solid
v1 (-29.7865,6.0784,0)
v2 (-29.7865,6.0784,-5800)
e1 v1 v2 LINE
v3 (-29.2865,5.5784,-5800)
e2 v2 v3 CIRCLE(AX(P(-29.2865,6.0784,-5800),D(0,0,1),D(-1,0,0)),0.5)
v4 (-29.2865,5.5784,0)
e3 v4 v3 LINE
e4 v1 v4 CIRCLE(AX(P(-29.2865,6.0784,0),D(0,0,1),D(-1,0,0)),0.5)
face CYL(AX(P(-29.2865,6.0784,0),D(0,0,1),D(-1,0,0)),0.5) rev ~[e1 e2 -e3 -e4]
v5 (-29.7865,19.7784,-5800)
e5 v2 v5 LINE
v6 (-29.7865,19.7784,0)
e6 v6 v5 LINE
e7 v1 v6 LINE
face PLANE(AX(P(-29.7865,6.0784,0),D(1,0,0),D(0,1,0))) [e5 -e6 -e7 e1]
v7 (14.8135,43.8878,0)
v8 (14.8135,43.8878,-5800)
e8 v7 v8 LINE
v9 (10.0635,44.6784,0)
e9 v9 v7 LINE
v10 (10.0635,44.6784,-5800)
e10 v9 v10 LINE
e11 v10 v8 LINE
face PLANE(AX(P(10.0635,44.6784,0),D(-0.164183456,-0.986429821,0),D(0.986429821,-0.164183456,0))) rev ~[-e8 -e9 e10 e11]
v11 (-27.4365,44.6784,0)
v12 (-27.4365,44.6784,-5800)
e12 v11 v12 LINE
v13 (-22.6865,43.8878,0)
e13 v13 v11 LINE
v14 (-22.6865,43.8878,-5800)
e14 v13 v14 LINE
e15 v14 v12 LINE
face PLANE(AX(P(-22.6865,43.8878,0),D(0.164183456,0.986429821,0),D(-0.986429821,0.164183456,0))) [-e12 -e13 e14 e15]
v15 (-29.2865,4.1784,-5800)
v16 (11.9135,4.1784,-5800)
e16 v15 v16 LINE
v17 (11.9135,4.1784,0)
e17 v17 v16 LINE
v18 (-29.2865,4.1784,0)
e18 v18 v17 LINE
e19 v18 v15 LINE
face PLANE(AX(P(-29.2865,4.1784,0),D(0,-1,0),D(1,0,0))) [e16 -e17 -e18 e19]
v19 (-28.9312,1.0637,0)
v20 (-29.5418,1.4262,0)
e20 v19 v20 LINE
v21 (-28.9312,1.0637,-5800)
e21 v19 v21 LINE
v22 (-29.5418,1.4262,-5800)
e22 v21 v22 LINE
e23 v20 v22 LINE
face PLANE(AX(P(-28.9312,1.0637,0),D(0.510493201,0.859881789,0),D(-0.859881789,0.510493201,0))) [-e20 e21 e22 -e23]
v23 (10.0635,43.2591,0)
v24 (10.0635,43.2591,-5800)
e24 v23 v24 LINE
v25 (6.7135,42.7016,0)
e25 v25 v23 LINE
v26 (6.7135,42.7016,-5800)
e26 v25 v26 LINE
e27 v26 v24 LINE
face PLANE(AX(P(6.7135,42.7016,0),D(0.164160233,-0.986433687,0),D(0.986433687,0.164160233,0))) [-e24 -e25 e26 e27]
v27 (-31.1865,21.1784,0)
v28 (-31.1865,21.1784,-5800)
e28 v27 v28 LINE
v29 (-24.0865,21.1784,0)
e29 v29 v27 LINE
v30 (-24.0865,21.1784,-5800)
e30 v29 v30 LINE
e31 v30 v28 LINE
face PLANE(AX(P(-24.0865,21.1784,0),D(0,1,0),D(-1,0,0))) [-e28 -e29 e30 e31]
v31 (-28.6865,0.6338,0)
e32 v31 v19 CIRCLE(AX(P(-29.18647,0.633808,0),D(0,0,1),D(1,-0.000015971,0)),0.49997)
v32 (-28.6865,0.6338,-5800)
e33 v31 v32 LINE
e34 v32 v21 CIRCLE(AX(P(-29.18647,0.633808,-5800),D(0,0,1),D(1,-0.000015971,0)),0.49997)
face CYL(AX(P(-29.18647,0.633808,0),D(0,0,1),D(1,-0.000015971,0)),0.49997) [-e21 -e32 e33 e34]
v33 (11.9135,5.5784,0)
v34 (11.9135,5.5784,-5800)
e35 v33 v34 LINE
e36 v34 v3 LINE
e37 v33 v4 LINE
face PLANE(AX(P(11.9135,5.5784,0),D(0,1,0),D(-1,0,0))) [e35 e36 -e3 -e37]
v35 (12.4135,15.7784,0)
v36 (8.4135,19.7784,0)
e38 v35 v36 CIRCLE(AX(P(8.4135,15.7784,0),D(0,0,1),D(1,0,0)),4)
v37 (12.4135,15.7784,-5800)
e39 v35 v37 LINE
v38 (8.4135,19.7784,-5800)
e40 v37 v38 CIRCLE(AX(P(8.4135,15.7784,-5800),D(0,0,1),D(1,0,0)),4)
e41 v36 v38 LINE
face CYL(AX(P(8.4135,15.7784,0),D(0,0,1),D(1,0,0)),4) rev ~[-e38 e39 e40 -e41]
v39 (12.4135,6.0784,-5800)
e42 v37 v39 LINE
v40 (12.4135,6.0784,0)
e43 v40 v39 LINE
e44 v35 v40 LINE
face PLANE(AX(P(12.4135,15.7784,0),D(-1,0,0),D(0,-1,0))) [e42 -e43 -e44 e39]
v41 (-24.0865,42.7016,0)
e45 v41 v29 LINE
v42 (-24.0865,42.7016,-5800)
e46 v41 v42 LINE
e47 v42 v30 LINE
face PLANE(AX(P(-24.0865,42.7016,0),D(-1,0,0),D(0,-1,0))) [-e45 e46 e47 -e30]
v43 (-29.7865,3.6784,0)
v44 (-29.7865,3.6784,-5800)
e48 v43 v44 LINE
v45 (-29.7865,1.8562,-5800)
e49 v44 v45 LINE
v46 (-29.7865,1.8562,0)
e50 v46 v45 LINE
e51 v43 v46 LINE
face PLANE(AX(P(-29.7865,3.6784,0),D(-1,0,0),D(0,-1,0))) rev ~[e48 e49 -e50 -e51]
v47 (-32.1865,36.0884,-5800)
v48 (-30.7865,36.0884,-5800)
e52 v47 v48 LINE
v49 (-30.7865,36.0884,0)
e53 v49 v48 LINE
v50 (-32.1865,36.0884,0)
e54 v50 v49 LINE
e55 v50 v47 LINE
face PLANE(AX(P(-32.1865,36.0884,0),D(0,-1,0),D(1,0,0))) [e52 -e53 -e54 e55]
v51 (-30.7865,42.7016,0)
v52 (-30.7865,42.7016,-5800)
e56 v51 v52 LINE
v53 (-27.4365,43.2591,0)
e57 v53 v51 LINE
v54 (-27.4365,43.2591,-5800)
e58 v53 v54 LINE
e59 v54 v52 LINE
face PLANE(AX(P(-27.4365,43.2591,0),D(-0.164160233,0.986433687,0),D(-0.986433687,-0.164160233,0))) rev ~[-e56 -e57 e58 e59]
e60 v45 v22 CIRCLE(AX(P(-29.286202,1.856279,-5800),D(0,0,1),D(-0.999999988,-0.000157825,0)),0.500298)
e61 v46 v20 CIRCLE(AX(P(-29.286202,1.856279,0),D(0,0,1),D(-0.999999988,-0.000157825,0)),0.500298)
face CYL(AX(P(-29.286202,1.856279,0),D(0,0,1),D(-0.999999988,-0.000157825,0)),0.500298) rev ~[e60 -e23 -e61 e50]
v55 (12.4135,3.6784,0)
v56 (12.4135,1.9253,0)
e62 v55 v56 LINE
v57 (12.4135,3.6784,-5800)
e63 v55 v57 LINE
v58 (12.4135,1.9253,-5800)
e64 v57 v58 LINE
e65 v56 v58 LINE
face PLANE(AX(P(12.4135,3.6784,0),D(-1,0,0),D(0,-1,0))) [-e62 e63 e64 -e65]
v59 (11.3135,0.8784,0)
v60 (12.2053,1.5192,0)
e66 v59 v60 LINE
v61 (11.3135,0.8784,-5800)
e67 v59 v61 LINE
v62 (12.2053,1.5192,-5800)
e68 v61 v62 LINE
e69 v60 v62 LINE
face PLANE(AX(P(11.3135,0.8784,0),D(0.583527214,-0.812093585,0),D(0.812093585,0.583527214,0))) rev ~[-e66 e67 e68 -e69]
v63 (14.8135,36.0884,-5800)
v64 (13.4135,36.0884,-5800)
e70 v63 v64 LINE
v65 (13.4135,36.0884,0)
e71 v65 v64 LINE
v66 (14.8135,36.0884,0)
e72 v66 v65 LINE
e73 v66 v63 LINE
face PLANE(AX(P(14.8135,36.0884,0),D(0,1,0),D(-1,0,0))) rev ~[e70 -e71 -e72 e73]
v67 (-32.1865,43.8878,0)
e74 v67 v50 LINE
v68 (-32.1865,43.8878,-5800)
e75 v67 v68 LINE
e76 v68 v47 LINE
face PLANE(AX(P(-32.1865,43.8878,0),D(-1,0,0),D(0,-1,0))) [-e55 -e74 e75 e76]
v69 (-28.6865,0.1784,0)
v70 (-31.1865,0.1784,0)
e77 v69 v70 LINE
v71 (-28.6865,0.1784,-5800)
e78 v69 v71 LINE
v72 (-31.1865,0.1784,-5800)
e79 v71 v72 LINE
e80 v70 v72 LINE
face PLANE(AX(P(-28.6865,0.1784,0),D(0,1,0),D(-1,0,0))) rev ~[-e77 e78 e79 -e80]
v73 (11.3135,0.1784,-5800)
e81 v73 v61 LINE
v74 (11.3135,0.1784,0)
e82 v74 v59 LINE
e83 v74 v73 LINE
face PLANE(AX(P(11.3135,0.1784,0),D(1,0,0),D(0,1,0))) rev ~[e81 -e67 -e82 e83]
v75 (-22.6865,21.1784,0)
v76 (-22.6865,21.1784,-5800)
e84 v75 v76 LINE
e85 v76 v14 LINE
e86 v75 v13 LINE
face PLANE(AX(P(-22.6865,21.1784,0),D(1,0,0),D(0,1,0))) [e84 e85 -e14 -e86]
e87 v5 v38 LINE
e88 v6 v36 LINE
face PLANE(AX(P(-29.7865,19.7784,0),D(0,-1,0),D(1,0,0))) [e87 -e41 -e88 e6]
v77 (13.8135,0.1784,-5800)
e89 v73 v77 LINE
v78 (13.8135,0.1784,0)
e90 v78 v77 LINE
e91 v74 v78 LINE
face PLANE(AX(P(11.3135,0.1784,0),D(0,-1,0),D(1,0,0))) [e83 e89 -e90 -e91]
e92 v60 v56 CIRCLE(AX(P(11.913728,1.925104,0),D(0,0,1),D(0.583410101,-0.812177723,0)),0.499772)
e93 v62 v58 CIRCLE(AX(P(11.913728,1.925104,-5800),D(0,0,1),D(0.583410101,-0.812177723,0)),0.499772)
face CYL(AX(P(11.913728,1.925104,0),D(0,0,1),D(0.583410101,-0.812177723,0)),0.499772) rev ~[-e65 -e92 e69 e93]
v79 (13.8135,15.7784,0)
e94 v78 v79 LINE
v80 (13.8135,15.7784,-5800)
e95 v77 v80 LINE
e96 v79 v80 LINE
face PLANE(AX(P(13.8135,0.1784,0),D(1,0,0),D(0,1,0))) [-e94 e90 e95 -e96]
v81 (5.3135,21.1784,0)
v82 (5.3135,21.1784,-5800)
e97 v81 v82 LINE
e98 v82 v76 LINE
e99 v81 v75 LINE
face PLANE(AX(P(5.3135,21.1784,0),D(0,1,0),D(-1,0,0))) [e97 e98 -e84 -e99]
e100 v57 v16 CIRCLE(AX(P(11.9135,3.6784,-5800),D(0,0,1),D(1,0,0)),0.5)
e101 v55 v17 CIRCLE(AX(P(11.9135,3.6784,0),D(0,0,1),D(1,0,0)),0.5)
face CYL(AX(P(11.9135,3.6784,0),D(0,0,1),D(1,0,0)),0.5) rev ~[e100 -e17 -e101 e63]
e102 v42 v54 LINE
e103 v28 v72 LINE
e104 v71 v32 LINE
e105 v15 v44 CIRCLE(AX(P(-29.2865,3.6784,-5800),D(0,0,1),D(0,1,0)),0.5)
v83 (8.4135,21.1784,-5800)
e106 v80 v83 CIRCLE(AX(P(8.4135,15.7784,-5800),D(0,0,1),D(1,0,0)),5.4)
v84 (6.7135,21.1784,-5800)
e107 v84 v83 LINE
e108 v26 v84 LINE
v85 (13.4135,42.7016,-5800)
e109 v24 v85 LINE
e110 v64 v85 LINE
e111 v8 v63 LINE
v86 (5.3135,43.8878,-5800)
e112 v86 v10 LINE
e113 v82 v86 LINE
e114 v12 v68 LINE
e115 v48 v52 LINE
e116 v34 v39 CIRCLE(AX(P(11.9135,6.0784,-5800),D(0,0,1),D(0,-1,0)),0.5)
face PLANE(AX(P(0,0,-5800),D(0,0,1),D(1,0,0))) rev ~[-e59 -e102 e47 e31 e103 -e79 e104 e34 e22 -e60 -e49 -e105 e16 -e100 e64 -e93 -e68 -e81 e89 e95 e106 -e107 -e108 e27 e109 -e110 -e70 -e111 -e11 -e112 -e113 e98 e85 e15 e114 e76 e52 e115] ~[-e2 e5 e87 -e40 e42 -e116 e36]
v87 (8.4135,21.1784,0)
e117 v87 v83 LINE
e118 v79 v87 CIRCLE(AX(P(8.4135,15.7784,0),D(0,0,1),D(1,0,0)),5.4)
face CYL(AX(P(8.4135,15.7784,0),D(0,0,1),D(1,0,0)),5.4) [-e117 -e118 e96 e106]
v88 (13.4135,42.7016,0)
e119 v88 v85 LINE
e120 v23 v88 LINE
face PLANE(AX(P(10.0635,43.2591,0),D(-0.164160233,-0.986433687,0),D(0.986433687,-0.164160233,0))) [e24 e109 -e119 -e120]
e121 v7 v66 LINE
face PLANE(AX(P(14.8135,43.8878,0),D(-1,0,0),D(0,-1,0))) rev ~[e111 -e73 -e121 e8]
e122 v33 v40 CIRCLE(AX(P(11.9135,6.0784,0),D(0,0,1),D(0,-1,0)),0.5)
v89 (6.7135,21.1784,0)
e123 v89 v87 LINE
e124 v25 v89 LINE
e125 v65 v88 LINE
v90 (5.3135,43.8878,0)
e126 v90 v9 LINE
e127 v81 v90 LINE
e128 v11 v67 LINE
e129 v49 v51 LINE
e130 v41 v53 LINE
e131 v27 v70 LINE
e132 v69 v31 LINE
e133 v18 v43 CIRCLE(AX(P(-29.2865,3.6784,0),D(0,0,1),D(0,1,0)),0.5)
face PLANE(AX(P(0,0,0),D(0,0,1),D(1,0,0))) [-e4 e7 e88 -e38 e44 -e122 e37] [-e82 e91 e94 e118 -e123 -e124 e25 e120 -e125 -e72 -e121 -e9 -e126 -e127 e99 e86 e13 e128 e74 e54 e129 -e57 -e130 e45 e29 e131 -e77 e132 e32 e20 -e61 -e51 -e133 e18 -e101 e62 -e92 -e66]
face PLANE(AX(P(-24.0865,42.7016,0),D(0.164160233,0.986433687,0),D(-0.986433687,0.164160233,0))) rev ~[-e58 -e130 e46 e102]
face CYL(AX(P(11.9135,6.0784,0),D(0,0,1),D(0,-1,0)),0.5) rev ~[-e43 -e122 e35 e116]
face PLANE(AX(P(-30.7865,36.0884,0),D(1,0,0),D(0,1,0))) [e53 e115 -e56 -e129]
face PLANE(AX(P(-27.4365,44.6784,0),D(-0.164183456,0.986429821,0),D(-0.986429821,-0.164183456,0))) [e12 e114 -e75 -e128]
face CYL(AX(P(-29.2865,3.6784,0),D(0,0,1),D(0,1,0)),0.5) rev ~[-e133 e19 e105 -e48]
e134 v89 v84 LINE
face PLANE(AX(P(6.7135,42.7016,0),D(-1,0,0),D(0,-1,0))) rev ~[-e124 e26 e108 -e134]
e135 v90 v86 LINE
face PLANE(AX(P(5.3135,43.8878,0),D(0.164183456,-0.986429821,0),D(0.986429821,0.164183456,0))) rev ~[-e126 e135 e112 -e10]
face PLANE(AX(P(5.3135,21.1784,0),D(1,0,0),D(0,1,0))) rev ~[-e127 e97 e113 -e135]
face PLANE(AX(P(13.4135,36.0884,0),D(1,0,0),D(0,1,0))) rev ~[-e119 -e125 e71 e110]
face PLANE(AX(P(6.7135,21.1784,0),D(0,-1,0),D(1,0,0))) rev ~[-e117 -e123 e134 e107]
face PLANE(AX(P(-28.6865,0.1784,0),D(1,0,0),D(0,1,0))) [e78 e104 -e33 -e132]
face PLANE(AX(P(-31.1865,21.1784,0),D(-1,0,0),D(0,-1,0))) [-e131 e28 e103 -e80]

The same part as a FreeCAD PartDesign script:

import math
import FreeCAD as App
import Part
import Sketcher

V = App.Vector
Q = App.Units.Quantity

doc = App.newDocument("Part")
params = doc.addObject("Spreadsheet::Sheet", "Params")
for row, (alias, value) in enumerate([
    ("sketch1_radius", "4 mm"),
    ("sketch1_radius2", "0.5 mm"),
    ("sketch1_radius3", "5.4 mm"),
    ("sketch1_width", "28 mm"),
    ("sketch1_width2", "2.5 mm"),
    ("pad1_length", "5800 mm"),
], start=1):
    params.set(f"A{row}", alias)
    params.set(f"B{row}", "=" + value)
    params.setAlias(f"B{row}", alias)

body = doc.addObject("PartDesign::Body", "Body")

# Sketch on XY plane
sketch1 = doc.addObject("Sketcher::SketchObject", "Sketch")
body.addObject(sketch1)
sketch1.AttachmentSupport = (doc.XY_Plane, [""])
sketch1.MapMode = "FlatFace"
sketch1.addGeometry([
    Part.LineSegment(V(-24.09, 21.18, 0), V(-31.19, 21.18, 0)),  # 0
    Part.LineSegment(V(-31.19, 21.18, 0), V(-31.19, 0.18, 0)),  # 1
    Part.LineSegment(V(-31.19, 0.18, 0), V(-28.69, 0.18, 0)),  # 2
    Part.LineSegment(V(-28.69, 0.18, 0), V(-28.69, 0.63, 0)),  # 3
    Part.ArcOfCircle(Part.Circle(V(-29.19, 0.63, 0), V(0, 0, 1), 0.5), math.radians(0), math.radians(59)),  # 4
    Part.LineSegment(V(-28.93, 1.06, 0), V(-29.54, 1.43, 0)),  # 5
    Part.ArcOfCircle(Part.Circle(V(-29.29, 1.86, 0), V(0, 0, 1), 0.5), math.radians(180), math.radians(239)),  # 6
    Part.LineSegment(V(-29.79, 1.86, 0), V(-29.79, 3.68, 0)),  # 7
    Part.ArcOfCircle(Part.Circle(V(-29.29, 3.68, 0), V(0, 0, 1), 0.5), math.radians(90), math.radians(180)),  # 8
    Part.LineSegment(V(-29.29, 4.18, 0), V(11.91, 4.18, 0)),  # 9
    Part.ArcOfCircle(Part.Circle(V(11.91, 3.68, 0), V(0, 0, 1), 0.5), math.radians(0), math.radians(90)),  # 10
    Part.LineSegment(V(12.41, 3.68, 0), V(12.41, 1.93, 0)),  # 11
    Part.ArcOfCircle(Part.Circle(V(11.91, 1.93, 0), V(0, 0, 1), 0.5), math.radians(-54), math.radians(0)),  # 12
    Part.LineSegment(V(12.21, 1.52, 0), V(11.31, 0.88, 0)),  # 13
    Part.LineSegment(V(11.31, 0.88, 0), V(11.31, 0.18, 0)),  # 14
    Part.LineSegment(V(11.31, 0.18, 0), V(13.81, 0.18, 0)),  # 15
    Part.LineSegment(V(13.81, 0.18, 0), V(13.81, 15.78, 0)),  # 16
    Part.ArcOfCircle(Part.Circle(V(8.41, 15.78, 0), V(0, 0, 1), 5.4), math.radians(0), math.radians(90)),  # 17
    Part.LineSegment(V(8.41, 21.18, 0), V(6.71, 21.18, 0)),  # 18
    Part.LineSegment(V(6.71, 21.18, 0), V(6.71, 42.7, 0)),  # 19
    Part.LineSegment(V(6.71, 42.7, 0), V(10.06, 43.26, 0)),  # 20
    Part.LineSegment(V(10.06, 43.26, 0), V(13.41, 42.7, 0)),  # 21
    Part.LineSegment(V(13.41, 42.7, 0), V(13.41, 36.09, 0)),  # 22
    Part.LineSegment(V(13.41, 36.09, 0), V(14.81, 36.09, 0)),  # 23
    Part.LineSegment(V(14.81, 36.09, 0), V(14.81, 43.89, 0)),  # 24
    Part.LineSegment(V(14.81, 43.89, 0), V(10.06, 44.68, 0)),  # 25
    Part.LineSegment(V(10.06, 44.68, 0), V(5.31, 43.89, 0)),  # 26
    Part.LineSegment(V(5.31, 43.89, 0), V(5.31, 21.18, 0)),  # 27
    Part.LineSegment(V(5.31, 21.18, 0), V(-22.69, 21.18, 0)),  # 28
    Part.LineSegment(V(-22.69, 21.18, 0), V(-22.69, 43.89, 0)),  # 29
    Part.LineSegment(V(-22.69, 43.89, 0), V(-27.44, 44.68, 0)),  # 30
    Part.LineSegment(V(-27.44, 44.68, 0), V(-32.19, 43.89, 0)),  # 31
    Part.LineSegment(V(-32.19, 43.89, 0), V(-32.19, 36.09, 0)),  # 32
    Part.LineSegment(V(-32.19, 36.09, 0), V(-30.79, 36.09, 0)),  # 33
    Part.LineSegment(V(-30.79, 36.09, 0), V(-30.79, 42.7, 0)),  # 34
    Part.LineSegment(V(-30.79, 42.7, 0), V(-27.44, 43.26, 0)),  # 35
    Part.LineSegment(V(-27.44, 43.26, 0), V(-24.09, 42.7, 0)),  # 36
    Part.LineSegment(V(-24.09, 42.7, 0), V(-24.09, 21.18, 0)),  # 37
    Part.LineSegment(V(-29.79, 6.08, 0), V(-29.79, 19.78, 0)),  # 38
    Part.LineSegment(V(-29.79, 19.78, 0), V(8.41, 19.78, 0)),  # 39
    Part.ArcOfCircle(Part.Circle(V(8.41, 15.78, 0), V(0, 0, 1), 4), math.radians(0), math.radians(90)),  # 40
    Part.LineSegment(V(12.41, 15.78, 0), V(12.41, 6.08, 0)),  # 41
    Part.ArcOfCircle(Part.Circle(V(11.91, 6.08, 0), V(0, 0, 1), 0.5), math.radians(-90), math.radians(0)),  # 42
    Part.LineSegment(V(11.91, 5.58, 0), V(-29.29, 5.58, 0)),  # 43
    Part.ArcOfCircle(Part.Circle(V(-29.29, 6.08, 0), V(0, 0, 1), 0.5), math.radians(180), math.radians(270)),  # 44
], False)
sketch1.addConstraint([
    Sketcher.Constraint("Coincident", 0, 2, 1, 1),
    Sketcher.Constraint("Coincident", 1, 2, 2, 1),
    Sketcher.Constraint("Coincident", 2, 2, 3, 1),
    Sketcher.Constraint("Tangent", 3, 2, 4, 1),
    Sketcher.Constraint("Tangent", 4, 2, 5, 1),
    Sketcher.Constraint("Tangent", 5, 2, 6, 2),
    Sketcher.Constraint("Tangent", 6, 1, 7, 1),
    Sketcher.Constraint("Tangent", 7, 2, 8, 2),
    Sketcher.Constraint("Tangent", 8, 1, 9, 1),
    Sketcher.Constraint("Tangent", 9, 2, 10, 2),
    Sketcher.Constraint("Tangent", 10, 1, 11, 1),
    Sketcher.Constraint("Tangent", 11, 2, 12, 2),
    Sketcher.Constraint("Tangent", 12, 1, 13, 1),
    Sketcher.Constraint("Coincident", 13, 2, 14, 1),
    Sketcher.Constraint("Coincident", 14, 2, 15, 1),
    Sketcher.Constraint("Coincident", 15, 2, 16, 1),
    Sketcher.Constraint("Tangent", 16, 2, 17, 1),
    Sketcher.Constraint("Tangent", 17, 2, 18, 1),
    Sketcher.Constraint("Coincident", 18, 2, 19, 1),
    Sketcher.Constraint("Coincident", 19, 2, 20, 1),
    Sketcher.Constraint("Coincident", 20, 2, 21, 1),
    Sketcher.Constraint("Coincident", 21, 2, 22, 1),
    Sketcher.Constraint("Coincident", 22, 2, 23, 1),
    Sketcher.Constraint("Coincident", 23, 2, 24, 1),
    Sketcher.Constraint("Coincident", 24, 2, 25, 1),
    Sketcher.Constraint("Coincident", 25, 2, 26, 1),
    Sketcher.Constraint("Coincident", 26, 2, 27, 1),
    Sketcher.Constraint("Coincident", 27, 2, 28, 1),
    Sketcher.Constraint("Coincident", 28, 2, 29, 1),
    Sketcher.Constraint("Coincident", 29, 2, 30, 1),
    Sketcher.Constraint("Coincident", 30, 2, 31, 1),
    Sketcher.Constraint("Coincident", 31, 2, 32, 1),
    Sketcher.Constraint("Coincident", 32, 2, 33, 1),
    Sketcher.Constraint("Coincident", 33, 2, 34, 1),
    Sketcher.Constraint("Coincident", 34, 2, 35, 1),
    Sketcher.Constraint("Coincident", 35, 2, 36, 1),
    Sketcher.Constraint("Coincident", 36, 2, 37, 1),
    Sketcher.Constraint("Coincident", 37, 2, 0, 1),
    Sketcher.Constraint("Coincident", 38, 2, 39, 1),
    Sketcher.Constraint("Tangent", 39, 2, 40, 2),
    Sketcher.Constraint("Tangent", 40, 1, 41, 1),
    Sketcher.Constraint("Tangent", 41, 2, 42, 2),
    Sketcher.Constraint("Tangent", 42, 1, 43, 1),
    Sketcher.Constraint("Tangent", 43, 2, 44, 2),
    Sketcher.Constraint("Tangent", 44, 1, 38, 1),
    Sketcher.Constraint("Horizontal", 0),
    Sketcher.Constraint("Vertical", 1),
    Sketcher.Constraint("Horizontal", 2),
    Sketcher.Constraint("Vertical", 3),
    Sketcher.Constraint("Vertical", 7),
    Sketcher.Constraint("Horizontal", 9),
    Sketcher.Constraint("Vertical", 11),
    Sketcher.Constraint("Vertical", 14),
    Sketcher.Constraint("Horizontal", 15),
    Sketcher.Constraint("Vertical", 16),
    Sketcher.Constraint("Horizontal", 18),
    Sketcher.Constraint("Vertical", 19),
    Sketcher.Constraint("Vertical", 22),
    Sketcher.Constraint("Horizontal", 23),
    Sketcher.Constraint("Vertical", 24),
    Sketcher.Constraint("Vertical", 27),
    Sketcher.Constraint("Horizontal", 28),
    Sketcher.Constraint("Vertical", 29),
    Sketcher.Constraint("Vertical", 32),
    Sketcher.Constraint("Horizontal", 33),
    Sketcher.Constraint("Vertical", 34),
    Sketcher.Constraint("Vertical", 37),
    Sketcher.Constraint("Vertical", 38),
    Sketcher.Constraint("Horizontal", 39),
    Sketcher.Constraint("Vertical", 41),
    Sketcher.Constraint("Horizontal", 43),
    Sketcher.Constraint("Coincident", 40, 3, 17, 3),
    Sketcher.Constraint("Equal", 4, 6),
    Sketcher.Constraint("Equal", 6, 8),
    Sketcher.Constraint("Equal", 8, 10),
    Sketcher.Constraint("Equal", 10, 12),
    Sketcher.Constraint("Equal", 12, 42),
    Sketcher.Constraint("Equal", 42, 44),
    Sketcher.Constraint("Parallel", 21, 25),
    Sketcher.Constraint("Parallel", 20, 26),
    Sketcher.Constraint("Parallel", 25, 30),
    Sketcher.Constraint("Parallel", 26, 31),
    Sketcher.Constraint("Parallel", 31, 35),
    Sketcher.Constraint("Parallel", 30, 36),
    Sketcher.Constraint("Horizontal", 2, 2, 14, 2),
    Sketcher.Constraint("Horizontal", 0, 2, 17, 2),
    Sketcher.Constraint("Horizontal", 19, 2, 21, 2),
    Sketcher.Constraint("Horizontal", 24, 2, 26, 2),
    Sketcher.Constraint("Horizontal", 18, 2, 27, 2),
    Sketcher.Constraint("Horizontal", 26, 2, 29, 2),
    Sketcher.Constraint("Horizontal", 25, 2, 30, 2),
    Sketcher.Constraint("Horizontal", 29, 2, 31, 2),
    Sketcher.Constraint("Horizontal", 23, 2, 32, 2),
    Sketcher.Constraint("Horizontal", 21, 2, 34, 2),
    Sketcher.Constraint("Horizontal", 20, 2, 35, 2),
    Sketcher.Constraint("Horizontal", 34, 2, 36, 2),
    Sketcher.Constraint("Vertical", 12, 3, 42, 3),
    Sketcher.Constraint("Vertical", 8, 3, 44, 3),
    Sketcher.Constraint("Vertical", 20, 2, 25, 2),
    Sketcher.Constraint("Vertical", 30, 2, 35, 2),
    Sketcher.Constraint("Equal", 2, 15),
    Sketcher.Constraint("Equal", 23, 33),
    Sketcher.Constraint("Radius", 40, 4.0),
    Sketcher.Constraint("Radius", 4, 0.5),
    Sketcher.Constraint("Radius", 17, 5.4),
    Sketcher.Constraint("DistanceX", 28, 2, 28, 1, 28.0),
    Sketcher.Constraint("DistanceX", 2, 1, 2, 2, 2.5),
    Sketcher.Constraint("DistanceX", 23, 1, 23, 2, 1.4),
    Sketcher.Constraint("DistanceY", 14, 2, 14, 1, 0.7),
    Sketcher.Constraint("DistanceX", 19, 2, 21, 2, 6.7),
    Sketcher.Constraint("DistanceX", 27, 2, 16, 2, 8.5),
    Sketcher.Constraint("DistanceX", 0, 2, 28, 2, 8.5),
    Sketcher.Constraint("DistanceY", 0, 2, 30, 2, 23.5),
    Sketcher.Constraint("DistanceX", 0, 2, 38, 2, 1.4),
    Sketcher.Constraint("DistanceY", 9, 2, 42, 1, 1.4),
    Sketcher.Constraint("DistanceY", 1, 2, 1, 1, 21.0),
    Sketcher.Constraint("DistanceY", 17, 2, 22, 2, 14.91),
    Sketcher.Constraint("DistanceY", 38, 1, 38, 2, 13.7),
    Sketcher.Constraint("Angle", 13, Q("-144.301 deg")),
    Sketcher.Constraint("DistanceY", -1, 1, 22, 2, 36.0884),
    Sketcher.Constraint("DistanceX", -1, 1, 23, 2, 14.8135),
    Sketcher.Constraint("Angle", 25, Q("170.5502 deg")),
    Sketcher.Constraint("Distance", 5, 0.71),
    Sketcher.Constraint("DistanceY", 3, 1, 3, 2, 0.4554),
    Sketcher.Constraint("DistanceY", 19, 1, 19, 2, 21.5232),
])
sketch1.setExpression("Constraints[102]", "Params.sketch1_radius")
sketch1.setExpression("Constraints[103]", "Params.sketch1_radius2")
sketch1.setExpression("Constraints[104]", "Params.sketch1_radius3")
sketch1.setExpression("Constraints[105]", "Params.sketch1_width")
sketch1.setExpression("Constraints[106]", "Params.sketch1_width2")
pad1 = doc.addObject("PartDesign::Pad", "Pad")
body.addObject(pad1)
pad1.Profile = sketch1
pad1.setExpression("Length", "Params.pad1_length")
pad1.Reversed = True

doc.recompute()
